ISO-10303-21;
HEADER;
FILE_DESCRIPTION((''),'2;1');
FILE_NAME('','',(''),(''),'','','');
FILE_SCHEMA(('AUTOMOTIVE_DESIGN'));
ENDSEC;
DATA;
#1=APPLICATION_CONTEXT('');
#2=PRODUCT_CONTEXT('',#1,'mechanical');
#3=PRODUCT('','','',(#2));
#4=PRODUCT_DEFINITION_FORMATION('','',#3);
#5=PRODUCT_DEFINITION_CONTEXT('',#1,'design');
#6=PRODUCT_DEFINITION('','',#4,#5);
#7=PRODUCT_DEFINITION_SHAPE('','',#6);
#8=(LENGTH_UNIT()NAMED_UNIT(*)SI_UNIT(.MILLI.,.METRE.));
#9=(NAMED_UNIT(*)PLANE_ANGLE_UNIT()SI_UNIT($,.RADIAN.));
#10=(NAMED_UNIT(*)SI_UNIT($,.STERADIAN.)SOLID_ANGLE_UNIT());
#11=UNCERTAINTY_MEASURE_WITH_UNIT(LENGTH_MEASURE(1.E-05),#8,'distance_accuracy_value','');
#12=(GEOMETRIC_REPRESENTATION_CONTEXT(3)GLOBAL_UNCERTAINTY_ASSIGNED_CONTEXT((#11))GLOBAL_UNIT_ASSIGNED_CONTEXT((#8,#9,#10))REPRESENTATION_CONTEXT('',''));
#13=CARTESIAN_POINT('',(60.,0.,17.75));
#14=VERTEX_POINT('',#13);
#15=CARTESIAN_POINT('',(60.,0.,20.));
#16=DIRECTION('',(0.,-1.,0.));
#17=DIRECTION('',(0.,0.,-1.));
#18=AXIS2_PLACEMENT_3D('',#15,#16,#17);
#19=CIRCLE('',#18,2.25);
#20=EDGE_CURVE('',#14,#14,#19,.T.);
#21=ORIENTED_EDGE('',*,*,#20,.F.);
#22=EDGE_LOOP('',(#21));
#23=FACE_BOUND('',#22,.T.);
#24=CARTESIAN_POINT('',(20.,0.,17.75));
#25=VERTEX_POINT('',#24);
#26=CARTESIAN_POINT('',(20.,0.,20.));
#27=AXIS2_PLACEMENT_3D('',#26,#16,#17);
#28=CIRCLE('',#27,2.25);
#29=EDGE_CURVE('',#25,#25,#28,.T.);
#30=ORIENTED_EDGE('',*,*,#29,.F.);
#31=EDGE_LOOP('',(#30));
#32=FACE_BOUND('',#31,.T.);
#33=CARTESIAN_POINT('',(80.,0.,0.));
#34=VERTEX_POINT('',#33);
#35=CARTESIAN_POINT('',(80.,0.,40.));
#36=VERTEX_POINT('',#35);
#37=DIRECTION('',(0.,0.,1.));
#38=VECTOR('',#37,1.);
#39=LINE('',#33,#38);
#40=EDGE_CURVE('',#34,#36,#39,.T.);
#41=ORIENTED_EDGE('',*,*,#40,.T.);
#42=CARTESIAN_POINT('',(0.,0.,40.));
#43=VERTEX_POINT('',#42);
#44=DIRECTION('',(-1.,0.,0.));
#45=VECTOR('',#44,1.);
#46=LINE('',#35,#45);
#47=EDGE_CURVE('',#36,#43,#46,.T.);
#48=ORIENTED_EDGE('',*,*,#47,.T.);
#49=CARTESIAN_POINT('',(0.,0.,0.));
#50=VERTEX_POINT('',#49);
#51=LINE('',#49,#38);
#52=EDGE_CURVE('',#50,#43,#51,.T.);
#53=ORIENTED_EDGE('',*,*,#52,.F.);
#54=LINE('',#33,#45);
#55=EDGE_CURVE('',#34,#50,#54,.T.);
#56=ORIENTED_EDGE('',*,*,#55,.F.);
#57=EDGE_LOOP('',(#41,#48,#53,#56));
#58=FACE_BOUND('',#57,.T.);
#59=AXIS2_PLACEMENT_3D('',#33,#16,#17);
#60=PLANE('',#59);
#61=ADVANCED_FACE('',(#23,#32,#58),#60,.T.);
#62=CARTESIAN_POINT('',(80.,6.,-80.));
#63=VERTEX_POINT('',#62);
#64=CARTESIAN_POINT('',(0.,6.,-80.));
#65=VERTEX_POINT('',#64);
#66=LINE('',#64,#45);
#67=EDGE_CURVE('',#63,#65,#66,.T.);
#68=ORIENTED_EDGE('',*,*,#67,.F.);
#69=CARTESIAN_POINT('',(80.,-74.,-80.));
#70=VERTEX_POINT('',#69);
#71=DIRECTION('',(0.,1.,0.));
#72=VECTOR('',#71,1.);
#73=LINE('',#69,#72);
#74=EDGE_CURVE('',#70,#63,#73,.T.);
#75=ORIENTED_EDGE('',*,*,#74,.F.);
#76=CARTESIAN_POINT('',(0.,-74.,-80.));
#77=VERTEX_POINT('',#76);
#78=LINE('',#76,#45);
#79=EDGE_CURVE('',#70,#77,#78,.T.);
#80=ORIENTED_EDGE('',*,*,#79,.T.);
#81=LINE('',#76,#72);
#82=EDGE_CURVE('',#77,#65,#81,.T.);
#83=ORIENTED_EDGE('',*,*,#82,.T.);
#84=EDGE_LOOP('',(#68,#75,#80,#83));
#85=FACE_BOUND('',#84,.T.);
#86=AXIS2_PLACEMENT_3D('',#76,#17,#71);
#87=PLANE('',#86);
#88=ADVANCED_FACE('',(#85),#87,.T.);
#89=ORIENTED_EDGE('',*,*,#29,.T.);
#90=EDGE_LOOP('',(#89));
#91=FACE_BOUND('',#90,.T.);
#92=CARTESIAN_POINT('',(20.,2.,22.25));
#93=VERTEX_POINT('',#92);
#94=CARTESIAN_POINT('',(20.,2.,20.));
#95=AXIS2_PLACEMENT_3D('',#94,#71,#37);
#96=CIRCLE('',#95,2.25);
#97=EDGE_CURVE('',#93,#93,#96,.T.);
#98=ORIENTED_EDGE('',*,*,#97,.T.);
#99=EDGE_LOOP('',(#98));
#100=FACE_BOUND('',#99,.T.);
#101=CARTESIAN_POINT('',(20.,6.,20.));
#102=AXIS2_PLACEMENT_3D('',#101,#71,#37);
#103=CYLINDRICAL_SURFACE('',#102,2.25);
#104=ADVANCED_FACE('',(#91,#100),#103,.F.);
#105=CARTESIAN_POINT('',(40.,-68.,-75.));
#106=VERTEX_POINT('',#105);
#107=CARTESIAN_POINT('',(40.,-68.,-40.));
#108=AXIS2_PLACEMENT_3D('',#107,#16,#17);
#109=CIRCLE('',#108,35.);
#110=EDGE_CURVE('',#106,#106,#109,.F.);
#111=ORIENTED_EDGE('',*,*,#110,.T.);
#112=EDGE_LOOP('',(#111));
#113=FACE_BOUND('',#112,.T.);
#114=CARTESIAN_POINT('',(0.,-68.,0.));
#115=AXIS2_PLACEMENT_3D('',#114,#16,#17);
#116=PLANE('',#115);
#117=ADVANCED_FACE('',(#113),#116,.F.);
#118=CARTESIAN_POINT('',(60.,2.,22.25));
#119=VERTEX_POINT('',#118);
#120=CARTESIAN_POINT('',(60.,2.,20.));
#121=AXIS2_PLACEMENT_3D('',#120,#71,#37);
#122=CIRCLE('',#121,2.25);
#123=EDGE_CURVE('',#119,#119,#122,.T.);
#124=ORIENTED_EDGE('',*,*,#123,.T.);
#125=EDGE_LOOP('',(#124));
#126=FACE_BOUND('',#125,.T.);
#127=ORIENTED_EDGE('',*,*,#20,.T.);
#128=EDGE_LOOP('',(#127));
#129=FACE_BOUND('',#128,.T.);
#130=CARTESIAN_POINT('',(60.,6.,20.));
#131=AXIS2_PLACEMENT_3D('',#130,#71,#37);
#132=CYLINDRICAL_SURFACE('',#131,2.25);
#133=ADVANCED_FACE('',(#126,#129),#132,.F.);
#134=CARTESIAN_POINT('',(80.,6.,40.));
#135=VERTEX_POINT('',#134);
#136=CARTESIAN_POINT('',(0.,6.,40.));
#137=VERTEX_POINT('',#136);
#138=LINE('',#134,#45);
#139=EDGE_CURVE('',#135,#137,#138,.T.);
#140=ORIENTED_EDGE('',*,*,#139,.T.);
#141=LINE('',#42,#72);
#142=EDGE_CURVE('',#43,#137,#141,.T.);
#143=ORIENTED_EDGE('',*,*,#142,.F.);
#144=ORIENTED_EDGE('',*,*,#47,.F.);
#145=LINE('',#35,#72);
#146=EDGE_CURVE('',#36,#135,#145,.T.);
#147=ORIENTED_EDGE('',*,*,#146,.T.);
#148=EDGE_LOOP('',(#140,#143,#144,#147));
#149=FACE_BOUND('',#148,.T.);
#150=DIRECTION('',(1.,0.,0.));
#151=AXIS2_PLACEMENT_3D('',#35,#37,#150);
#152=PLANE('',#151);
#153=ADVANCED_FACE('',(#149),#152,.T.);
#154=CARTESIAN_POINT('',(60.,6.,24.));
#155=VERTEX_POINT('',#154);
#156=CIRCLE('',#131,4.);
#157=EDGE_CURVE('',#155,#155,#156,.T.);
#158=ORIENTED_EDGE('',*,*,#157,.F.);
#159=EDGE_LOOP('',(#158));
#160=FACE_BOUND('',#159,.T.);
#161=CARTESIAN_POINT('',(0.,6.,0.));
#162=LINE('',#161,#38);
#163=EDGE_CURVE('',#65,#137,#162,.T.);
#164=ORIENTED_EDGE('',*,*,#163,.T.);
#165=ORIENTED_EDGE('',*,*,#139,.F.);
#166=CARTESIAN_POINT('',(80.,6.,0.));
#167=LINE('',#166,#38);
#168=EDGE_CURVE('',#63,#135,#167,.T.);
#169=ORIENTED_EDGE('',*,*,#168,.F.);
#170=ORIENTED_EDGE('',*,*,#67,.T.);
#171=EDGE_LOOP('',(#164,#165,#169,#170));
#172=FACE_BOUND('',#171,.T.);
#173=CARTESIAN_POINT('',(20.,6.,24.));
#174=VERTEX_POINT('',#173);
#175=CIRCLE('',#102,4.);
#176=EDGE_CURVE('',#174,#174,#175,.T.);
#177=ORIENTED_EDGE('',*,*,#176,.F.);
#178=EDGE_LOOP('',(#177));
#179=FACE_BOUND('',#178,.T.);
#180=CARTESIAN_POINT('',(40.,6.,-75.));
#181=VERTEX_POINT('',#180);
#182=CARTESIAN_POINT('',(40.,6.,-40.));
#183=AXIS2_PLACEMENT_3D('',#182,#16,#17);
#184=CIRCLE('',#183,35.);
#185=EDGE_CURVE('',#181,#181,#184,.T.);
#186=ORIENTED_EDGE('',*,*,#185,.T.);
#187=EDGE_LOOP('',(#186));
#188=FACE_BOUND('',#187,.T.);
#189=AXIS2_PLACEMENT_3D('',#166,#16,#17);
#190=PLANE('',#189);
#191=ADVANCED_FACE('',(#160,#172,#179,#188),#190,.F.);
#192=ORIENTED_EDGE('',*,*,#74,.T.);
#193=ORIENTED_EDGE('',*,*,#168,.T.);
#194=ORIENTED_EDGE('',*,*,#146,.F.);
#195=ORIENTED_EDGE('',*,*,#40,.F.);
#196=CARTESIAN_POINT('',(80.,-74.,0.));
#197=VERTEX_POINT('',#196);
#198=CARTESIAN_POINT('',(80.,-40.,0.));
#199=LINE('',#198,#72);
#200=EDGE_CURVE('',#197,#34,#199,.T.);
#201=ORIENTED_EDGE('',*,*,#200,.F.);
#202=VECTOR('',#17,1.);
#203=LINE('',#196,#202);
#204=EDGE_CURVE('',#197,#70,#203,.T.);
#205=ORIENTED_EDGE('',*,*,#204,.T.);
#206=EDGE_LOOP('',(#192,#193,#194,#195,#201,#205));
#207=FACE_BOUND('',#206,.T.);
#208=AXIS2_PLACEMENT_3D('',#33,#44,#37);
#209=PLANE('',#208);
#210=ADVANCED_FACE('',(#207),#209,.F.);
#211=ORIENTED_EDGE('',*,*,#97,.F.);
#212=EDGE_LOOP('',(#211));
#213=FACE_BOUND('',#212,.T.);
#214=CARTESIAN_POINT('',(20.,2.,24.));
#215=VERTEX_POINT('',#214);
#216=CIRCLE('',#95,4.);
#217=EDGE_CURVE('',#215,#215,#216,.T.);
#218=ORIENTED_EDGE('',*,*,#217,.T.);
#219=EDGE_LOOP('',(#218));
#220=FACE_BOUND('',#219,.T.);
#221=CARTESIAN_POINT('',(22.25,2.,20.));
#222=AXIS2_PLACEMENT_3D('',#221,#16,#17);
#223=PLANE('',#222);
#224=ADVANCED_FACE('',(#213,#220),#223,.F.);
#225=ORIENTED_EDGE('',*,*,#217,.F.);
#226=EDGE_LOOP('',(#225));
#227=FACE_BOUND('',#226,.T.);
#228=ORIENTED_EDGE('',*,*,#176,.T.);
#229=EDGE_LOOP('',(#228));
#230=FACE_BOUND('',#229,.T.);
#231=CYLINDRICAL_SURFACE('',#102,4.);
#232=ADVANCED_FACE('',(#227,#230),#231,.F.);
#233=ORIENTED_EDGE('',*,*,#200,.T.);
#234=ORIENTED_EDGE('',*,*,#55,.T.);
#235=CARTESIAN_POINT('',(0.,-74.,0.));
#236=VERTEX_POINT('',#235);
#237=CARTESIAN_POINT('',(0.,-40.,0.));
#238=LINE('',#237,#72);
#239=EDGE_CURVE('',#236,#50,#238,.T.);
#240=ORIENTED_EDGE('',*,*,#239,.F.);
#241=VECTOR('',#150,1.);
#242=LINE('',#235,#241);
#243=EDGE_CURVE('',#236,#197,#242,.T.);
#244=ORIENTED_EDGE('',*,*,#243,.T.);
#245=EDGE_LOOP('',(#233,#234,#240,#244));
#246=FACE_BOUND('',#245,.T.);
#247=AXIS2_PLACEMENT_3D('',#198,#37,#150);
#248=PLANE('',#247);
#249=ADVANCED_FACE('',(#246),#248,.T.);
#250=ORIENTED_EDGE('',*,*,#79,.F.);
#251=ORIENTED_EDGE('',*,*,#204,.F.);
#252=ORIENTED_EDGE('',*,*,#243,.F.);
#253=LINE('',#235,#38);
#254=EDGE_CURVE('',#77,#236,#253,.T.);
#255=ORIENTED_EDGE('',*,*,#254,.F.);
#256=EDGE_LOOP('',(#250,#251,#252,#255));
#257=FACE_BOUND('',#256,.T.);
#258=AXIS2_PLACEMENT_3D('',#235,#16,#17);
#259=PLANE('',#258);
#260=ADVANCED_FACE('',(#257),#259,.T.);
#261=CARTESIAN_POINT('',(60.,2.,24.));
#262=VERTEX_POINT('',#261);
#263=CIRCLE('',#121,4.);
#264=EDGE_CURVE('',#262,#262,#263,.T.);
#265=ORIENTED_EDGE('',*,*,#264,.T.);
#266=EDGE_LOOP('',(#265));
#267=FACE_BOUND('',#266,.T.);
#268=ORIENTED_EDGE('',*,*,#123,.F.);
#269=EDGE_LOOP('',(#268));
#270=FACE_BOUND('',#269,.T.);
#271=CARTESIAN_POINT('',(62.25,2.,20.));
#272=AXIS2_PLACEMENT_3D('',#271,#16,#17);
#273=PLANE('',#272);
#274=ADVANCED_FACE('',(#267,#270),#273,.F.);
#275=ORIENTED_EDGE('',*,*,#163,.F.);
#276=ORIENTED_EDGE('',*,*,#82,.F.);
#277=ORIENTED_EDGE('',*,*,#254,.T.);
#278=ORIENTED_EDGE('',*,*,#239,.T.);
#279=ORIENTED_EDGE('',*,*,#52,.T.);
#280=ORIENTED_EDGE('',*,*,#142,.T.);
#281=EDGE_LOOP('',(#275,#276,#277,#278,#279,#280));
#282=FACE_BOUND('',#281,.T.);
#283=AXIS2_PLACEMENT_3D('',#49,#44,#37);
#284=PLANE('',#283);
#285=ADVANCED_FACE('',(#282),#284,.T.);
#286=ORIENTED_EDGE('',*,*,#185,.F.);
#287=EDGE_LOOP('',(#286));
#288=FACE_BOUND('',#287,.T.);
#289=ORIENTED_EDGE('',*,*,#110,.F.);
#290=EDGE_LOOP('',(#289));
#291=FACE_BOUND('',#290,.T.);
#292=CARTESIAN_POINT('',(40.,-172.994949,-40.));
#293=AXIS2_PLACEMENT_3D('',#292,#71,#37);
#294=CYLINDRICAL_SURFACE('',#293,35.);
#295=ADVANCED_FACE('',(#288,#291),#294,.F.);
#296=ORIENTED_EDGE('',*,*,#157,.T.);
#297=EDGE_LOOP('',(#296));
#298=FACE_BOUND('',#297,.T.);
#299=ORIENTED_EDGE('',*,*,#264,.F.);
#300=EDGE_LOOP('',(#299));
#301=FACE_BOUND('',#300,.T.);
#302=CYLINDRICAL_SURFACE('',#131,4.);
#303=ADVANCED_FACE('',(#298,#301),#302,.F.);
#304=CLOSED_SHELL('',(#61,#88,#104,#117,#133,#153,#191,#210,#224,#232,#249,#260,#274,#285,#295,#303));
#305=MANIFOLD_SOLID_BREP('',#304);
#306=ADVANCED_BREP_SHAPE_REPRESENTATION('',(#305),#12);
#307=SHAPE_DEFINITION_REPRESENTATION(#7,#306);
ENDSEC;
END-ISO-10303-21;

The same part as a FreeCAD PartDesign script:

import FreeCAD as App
import Part
import Sketcher
from FreeCAD import Vector


def add_polygon(sketch, points):
    """Adds a closed chain of lines whose ends are joined by coincident constraints."""
    first, n = sketch.GeometryCount, len(points)
    for a, b in zip(points, points[1:] + points[:1]):
        sketch.addGeometry(Part.LineSegment(App.Vector(*a, 0), App.Vector(*b, 0)), False)
    for i in range(n):
        sketch.addConstraint(Sketcher.Constraint("Coincident", first + i, 2, first + (i + 1) % n, 1))

doc = App.newDocument("Part")
params = doc.addObject("Spreadsheet::Sheet", "Params")
for row, (alias, value) in enumerate([
    ("sketch1_width", "40 mm"),
    ("sketch1_width2", "46 mm"),
    ("pad1_length", "80 mm"),
    ("sketch2_width", "80 mm"),
    ("pad2_length", "80 mm"),
    ("sketch3_diameter", "70 mm"),
    ("pocket1_length", "1 mm"),
    ("pocket1_length2", "74 mm"),
    ("sketch4_diameter", "4.5 mm"),
    ("hole_diameter", "4.5 mm"),
    ("hole_depth", "6 mm"),
    ("hole_cbore_diameter", "8 mm"),
    ("hole_cbore_depth", "4 mm"),
], start=1):
    params.set(f"A{row}", alias)
    params.set(f"B{row}", "=" + value)
    params.setAlias(f"B{row}", alias)

body = doc.addObject("PartDesign::Body", "Body")

sketch1 = body.newObject("Sketcher::SketchObject", "Sketch")
sketch1.AttachmentSupport = (doc.getObject("YZ_Plane"), [""])
sketch1.MapMode = "FlatFace"
add_polygon(sketch1, [(0, 0), (-40, 0), (-40, -6), (6, -6), (6, 40), (0, 40)])
sketch1.addConstraint([
    Sketcher.Constraint("Horizontal", 0),
    Sketcher.Constraint("Vertical", 1),
    Sketcher.Constraint("Horizontal", 2),
    Sketcher.Constraint("Vertical", 3),
    Sketcher.Constraint("Horizontal", 4),
    Sketcher.Constraint("Vertical", 5),
    Sketcher.Constraint("Coincident", 5, 2, -1, 1),
    Sketcher.Constraint("Equal", 4, 1),
    Sketcher.Constraint("Equal", 2, 3),
    Sketcher.Constraint("DistanceX", 0, 2, 0, 1, 40.0),
    Sketcher.Constraint("DistanceX", 2, 1, 2, 2, 46.0),
])
sketch1.setExpression("Constraints[15]", "Params.sketch1_width")
sketch1.setExpression("Constraints[16]", "Params.sketch1_width2")
pad1 = body.newObject("PartDesign::Pad", "Pad")
pad1.Profile = sketch1
pad1.setExpression("Length", "Params.pad1_length")

sketch2 = body.newObject("Sketcher::SketchObject", "Sketch001")
sketch2.AttachmentSupport = (doc.getObject("XZ_Plane"), [""])
sketch2.MapMode = "FlatFace"
sketch2.AttachmentOffset = App.Placement(Vector(0, 0, -6), App.Rotation())
add_polygon(sketch2, [(0, -80), (0, 0), (80, 0), (80, -80)])
sketch2.addConstraint([
    Sketcher.Constraint("Vertical", 0),
    Sketcher.Constraint("Horizontal", 1),
    Sketcher.Constraint("Vertical", 2),
    Sketcher.Constraint("Horizontal", 3),
    Sketcher.Constraint("Coincident", 0, 2, -1, 1),
    Sketcher.Constraint("Equal", 3, 0),
    Sketcher.Constraint("DistanceX", 1, 1, 1, 2, 80.0),
])
sketch2.setExpression("Constraints[10]", "Params.sketch2_width")
pad2 = body.newObject("PartDesign::Pad", "Pad001")
pad2.Profile = sketch2
pad2.setExpression("Length", "Params.pad2_length")

sketch3 = body.newObject("Sketcher::SketchObject", "Sketch002")
sketch3.AttachmentSupport = (doc.getObject("XZ_Plane"), [""])
sketch3.MapMode = "FlatFace"
sketch3.AttachmentOffset = App.Placement(Vector(0, 0, -6), App.Rotation())
sketch3.addGeometry(Part.Circle(Vector(40, -40, 0), Vector(0, 0, 1), 35), False)
sketch3.addConstraint([
    Sketcher.Constraint("Diameter", 0, 70.0),
    Sketcher.Constraint("DistanceX", -1, 1, 0, 3, 40.0),
    Sketcher.Constraint("DistanceY", 0, 3, -1, 1, 40.0),
])
sketch3.setExpression("Constraints[0]", "Params.sketch3_diameter")
pocket1 = body.newObject("PartDesign::Pocket", "Pocket")
pocket1.Profile = sketch3
pocket1.Type = "TwoLengths"
pocket1.setExpression("Length", "Params.pocket1_length")
pocket1.setExpression("Length2", "Params.pocket1_length2")

sketch4 = body.newObject("Sketcher::SketchObject", "Sketch003")
sketch4.AttachmentSupport = (doc.getObject("XZ_Plane"), [""])
sketch4.MapMode = "FlatFace"
sketch4.AttachmentOffset = App.Placement(Vector(0, 0, -6), App.Rotation())
sketch4.addGeometry([
    Part.Circle(Vector(60, 20, 0), Vector(0, 0, 1), 2.25),
    Part.Circle(Vector(20, 20, 0), Vector(0, 0, 1), 2.25),
], False)
sketch4.addConstraint([
    Sketcher.Constraint("Equal", 0, 1),
    Sketcher.Constraint("Horizontal", 0, 3, 1, 3),
    Sketcher.Constraint("Diameter", 0, 4.5),
    Sketcher.Constraint("DistanceX", -1, 1, 0, 3, 60.0),
    Sketcher.Constraint("DistanceY", -1, 1, 0, 3, 20.0),
    Sketcher.Constraint("DistanceX", -1, 1, 1, 3, 20.0),
])
sketch4.setExpression("Constraints[2]", "Params.sketch4_diameter")
doc.recompute()
hole = body.newObject("PartDesign::Hole", "Hole")
hole.Profile = sketch4
hole.ThreadType = "None"
hole.setExpression("Diameter", "Params.hole_diameter")
hole.DepthType = "Dimension"
hole.setExpression("Depth", "Params.hole_depth")
hole.DrillPoint = "Flat"
hole.HoleCutType = "Counterbore"
hole.setExpression("HoleCutDiameter", "Params.hole_cbore_diameter")
hole.setExpression("HoleCutDepth", "Params.hole_cbore_depth")
hole.Reversed = True

doc.recompute()
